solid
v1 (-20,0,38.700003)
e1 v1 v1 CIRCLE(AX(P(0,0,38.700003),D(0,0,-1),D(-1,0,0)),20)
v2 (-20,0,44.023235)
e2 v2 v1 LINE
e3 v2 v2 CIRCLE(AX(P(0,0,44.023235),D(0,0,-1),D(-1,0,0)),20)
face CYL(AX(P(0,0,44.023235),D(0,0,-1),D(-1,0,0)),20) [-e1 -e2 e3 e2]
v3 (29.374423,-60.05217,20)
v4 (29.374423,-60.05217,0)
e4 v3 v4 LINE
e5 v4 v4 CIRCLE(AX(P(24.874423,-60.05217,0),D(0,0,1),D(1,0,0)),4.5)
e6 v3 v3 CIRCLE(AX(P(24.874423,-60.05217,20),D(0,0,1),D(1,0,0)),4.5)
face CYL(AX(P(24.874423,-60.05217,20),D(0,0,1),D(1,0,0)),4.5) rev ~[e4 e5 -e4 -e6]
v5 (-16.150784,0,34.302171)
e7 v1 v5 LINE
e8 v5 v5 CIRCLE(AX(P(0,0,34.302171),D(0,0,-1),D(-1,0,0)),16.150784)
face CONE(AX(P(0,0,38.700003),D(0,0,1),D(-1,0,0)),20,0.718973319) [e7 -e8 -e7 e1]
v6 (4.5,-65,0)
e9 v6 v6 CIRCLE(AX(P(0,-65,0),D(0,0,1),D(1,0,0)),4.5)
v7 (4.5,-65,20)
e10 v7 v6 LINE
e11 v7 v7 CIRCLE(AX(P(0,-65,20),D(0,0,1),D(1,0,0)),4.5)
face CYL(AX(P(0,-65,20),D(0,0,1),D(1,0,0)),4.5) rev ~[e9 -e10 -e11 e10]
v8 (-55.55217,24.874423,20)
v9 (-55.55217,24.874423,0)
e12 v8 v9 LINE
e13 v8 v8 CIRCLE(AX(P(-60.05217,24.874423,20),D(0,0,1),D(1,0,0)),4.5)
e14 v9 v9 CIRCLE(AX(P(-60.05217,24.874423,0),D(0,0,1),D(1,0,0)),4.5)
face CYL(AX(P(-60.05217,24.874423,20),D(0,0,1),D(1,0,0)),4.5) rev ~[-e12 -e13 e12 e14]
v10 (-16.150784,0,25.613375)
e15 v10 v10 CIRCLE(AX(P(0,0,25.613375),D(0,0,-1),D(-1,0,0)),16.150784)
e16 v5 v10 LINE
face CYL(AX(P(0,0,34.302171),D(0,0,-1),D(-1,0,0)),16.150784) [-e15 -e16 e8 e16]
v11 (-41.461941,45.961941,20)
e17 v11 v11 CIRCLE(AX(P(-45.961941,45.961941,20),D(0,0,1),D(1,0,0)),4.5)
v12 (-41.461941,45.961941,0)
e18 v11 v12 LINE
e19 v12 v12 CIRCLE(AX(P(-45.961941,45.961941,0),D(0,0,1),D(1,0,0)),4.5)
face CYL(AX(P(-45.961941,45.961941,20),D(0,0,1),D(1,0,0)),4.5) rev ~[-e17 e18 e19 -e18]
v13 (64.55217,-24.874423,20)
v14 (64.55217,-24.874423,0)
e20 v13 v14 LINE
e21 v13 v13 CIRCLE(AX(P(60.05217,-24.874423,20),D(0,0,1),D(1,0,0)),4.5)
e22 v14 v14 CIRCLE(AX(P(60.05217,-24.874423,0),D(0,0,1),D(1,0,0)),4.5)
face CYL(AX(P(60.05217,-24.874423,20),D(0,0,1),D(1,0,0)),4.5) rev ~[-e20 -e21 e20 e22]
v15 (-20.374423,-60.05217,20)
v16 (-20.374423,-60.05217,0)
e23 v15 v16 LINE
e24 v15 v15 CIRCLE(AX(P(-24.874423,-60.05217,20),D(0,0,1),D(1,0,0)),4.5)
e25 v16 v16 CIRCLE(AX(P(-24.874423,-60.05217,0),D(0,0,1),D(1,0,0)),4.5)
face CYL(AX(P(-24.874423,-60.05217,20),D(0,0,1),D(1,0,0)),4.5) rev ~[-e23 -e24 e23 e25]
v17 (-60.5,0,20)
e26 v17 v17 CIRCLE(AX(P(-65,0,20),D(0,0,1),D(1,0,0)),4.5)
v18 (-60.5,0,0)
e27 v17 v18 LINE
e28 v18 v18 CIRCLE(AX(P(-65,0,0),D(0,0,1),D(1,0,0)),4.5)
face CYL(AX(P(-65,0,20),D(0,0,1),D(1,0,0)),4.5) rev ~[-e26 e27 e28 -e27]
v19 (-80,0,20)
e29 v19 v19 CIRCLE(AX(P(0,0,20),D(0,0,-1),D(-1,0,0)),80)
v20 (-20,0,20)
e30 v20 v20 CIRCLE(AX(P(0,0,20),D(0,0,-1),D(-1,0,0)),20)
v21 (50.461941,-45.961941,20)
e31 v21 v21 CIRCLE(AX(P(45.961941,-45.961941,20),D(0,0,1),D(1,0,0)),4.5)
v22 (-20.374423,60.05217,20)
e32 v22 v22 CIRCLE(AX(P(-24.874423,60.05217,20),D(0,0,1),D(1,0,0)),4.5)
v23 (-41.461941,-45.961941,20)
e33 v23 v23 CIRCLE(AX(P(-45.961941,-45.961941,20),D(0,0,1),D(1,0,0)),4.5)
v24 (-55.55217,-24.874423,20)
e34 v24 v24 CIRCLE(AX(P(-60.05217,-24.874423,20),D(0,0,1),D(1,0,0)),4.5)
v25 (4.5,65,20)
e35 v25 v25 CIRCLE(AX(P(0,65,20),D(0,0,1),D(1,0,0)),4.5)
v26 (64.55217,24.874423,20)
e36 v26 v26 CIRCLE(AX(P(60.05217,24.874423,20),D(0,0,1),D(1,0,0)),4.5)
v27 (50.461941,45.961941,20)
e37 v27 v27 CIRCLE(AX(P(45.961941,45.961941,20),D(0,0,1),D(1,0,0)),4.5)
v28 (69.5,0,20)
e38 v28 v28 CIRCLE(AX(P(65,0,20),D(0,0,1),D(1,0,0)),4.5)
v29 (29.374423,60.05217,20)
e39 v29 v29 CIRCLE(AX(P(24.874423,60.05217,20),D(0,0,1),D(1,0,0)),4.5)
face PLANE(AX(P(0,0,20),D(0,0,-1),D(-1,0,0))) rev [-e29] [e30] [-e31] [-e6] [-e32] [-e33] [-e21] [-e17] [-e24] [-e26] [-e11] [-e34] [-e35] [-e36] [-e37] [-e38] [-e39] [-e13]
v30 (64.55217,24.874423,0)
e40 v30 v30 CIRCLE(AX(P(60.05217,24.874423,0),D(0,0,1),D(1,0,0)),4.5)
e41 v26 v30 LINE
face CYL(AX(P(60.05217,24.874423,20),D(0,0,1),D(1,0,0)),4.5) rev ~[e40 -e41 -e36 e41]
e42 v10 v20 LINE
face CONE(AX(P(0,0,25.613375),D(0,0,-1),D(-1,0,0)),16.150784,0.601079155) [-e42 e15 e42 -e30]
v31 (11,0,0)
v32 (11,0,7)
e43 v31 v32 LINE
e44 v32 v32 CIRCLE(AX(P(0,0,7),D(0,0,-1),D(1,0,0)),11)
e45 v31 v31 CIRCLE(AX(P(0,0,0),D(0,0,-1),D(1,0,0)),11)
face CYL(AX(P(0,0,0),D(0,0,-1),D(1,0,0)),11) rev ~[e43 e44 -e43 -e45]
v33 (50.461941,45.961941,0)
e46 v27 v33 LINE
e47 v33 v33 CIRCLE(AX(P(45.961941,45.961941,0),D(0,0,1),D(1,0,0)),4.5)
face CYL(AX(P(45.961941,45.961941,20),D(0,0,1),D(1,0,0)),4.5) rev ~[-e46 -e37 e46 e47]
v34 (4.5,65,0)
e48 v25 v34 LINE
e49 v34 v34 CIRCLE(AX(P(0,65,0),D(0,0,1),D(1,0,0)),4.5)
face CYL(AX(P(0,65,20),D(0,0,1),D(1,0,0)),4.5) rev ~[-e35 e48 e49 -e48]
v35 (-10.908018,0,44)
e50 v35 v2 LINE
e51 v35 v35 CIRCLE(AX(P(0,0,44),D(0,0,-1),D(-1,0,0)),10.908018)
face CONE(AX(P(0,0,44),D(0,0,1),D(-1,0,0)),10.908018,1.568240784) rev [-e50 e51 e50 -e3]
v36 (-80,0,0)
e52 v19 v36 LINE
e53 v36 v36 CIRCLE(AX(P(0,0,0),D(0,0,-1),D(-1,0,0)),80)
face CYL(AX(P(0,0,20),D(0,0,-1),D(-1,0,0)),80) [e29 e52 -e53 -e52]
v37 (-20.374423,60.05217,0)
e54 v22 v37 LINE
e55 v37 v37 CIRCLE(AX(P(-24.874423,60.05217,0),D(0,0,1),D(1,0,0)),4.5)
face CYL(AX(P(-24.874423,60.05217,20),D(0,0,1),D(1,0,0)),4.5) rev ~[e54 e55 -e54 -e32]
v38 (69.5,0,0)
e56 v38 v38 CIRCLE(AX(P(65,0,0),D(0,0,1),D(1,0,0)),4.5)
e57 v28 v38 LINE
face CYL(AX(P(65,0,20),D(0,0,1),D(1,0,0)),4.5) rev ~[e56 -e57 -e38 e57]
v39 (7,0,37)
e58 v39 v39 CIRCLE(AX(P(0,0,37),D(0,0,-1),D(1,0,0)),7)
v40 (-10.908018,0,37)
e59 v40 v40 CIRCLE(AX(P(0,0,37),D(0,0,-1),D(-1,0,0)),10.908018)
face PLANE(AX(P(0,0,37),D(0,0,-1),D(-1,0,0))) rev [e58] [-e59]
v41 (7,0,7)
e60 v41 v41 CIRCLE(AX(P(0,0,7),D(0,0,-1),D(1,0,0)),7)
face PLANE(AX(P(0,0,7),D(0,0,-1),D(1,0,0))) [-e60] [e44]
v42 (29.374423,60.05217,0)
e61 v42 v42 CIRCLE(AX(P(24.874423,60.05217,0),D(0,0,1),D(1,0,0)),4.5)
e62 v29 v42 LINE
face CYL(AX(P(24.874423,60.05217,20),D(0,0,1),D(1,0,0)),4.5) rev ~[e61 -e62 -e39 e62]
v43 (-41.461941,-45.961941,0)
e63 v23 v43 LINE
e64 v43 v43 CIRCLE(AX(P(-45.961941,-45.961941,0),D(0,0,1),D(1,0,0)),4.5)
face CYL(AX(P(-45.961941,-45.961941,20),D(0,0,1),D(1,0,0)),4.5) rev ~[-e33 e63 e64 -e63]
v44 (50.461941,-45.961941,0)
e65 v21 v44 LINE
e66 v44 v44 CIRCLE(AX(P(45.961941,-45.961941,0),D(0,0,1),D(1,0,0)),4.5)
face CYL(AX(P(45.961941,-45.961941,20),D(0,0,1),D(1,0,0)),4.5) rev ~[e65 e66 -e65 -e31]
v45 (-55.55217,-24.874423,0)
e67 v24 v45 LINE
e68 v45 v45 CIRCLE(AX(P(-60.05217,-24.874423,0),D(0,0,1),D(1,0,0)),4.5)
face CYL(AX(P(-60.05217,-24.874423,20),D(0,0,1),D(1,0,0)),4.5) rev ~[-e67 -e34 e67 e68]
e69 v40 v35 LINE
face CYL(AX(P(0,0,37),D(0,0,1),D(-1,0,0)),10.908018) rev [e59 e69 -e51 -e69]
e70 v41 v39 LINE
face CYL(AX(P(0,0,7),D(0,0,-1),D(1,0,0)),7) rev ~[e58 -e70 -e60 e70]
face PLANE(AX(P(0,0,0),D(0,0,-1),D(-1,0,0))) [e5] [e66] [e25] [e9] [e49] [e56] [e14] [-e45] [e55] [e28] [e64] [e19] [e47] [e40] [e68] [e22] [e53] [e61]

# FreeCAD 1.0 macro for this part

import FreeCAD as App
import Part
import Sketcher
from FreeCAD import Vector

doc = App.newDocument("Part")
body = doc.addObject("PartDesign::Body", "Body")

sketch1 = body.newObject("Sketcher::SketchObject", "Sketch")
sketch1.AttachmentSupport = (doc.getObject("XZ_Plane"), [""])
sketch1.MapMode = "FlatFace"
sketch1.addGeometry([
    Part.LineSegment(Vector(-20, 20, 0), Vector(-80, 20, 0)),
    Part.LineSegment(Vector(-80, 20, 0), Vector(-80, 0, 0)),
    Part.LineSegment(Vector(-80, 0, 0), Vector(0, 0, 0)),
    Part.LineSegment(Vector(0, 0, 0), Vector(0, 37, 0)),
    Part.LineSegment(Vector(0, 37, 0), Vector(-11, 37, 0)),
    Part.LineSegment(Vector(-11, 37, 0), Vector(-11, 44, 0)),
    Part.LineSegment(Vector(-11, 44, 0), Vector(-20, 44, 0)),
    Part.LineSegment(Vector(-20, 44, 0), Vector(-20, 39, 0)),
    Part.LineSegment(Vector(-20, 39, 0), Vector(-16, 34, 0)),
    Part.LineSegment(Vector(-16, 34, 0), Vector(-16, 26, 0)),
    Part.LineSegment(Vector(-16, 26, 0), Vector(-20, 20, 0)),
], False)
sketch1.addConstraint([
    Sketcher.Constraint("Coincident", 0, 2, 1, 1),
    Sketcher.Constraint("Coincident", 1, 2, 2, 1),
    Sketcher.Constraint("Coincident", 2, 2, 3, 1),
    Sketcher.Constraint("Coincident", 3, 2, 4, 1),
    Sketcher.Constraint("Coincident", 4, 2, 5, 1),
    Sketcher.Constraint("Coincident", 5, 2, 6, 1),
    Sketcher.Constraint("Coincident", 6, 2, 7, 1),
    Sketcher.Constraint("Coincident", 7, 2, 8, 1),
    Sketcher.Constraint("Coincident", 8, 2, 9, 1),
    Sketcher.Constraint("Coincident", 9, 2, 10, 1),
    Sketcher.Constraint("Coincident", 10, 2, 0, 1),
    Sketcher.Constraint("Horizontal", 0),
    Sketcher.Constraint("Vertical", 1),
    Sketcher.Constraint("Horizontal", 2),
    Sketcher.Constraint("Vertical", 3),
    Sketcher.Constraint("Horizontal", 4),
    Sketcher.Constraint("Vertical", 5),
    Sketcher.Constraint("Vertical", 7),
    Sketcher.Constraint("Vertical", 9),
    Sketcher.Constraint("Coincident", 2, 2, -1, 1),
    Sketcher.Constraint("Vertical", 7, 2, 10, 2),
    Sketcher.Constraint("DistanceX", 0, 2, 0, 1, 60.0),
    Sketcher.Constraint("DistanceX", 2, 1, 2, 2, 80.0),
    Sketcher.Constraint("DistanceY", 1, 2, 1, 1, 20.0),
    Sketcher.Constraint("DistanceY", 3, 1, 3, 2, 37.0),
    Sketcher.Constraint("DistanceY", 5, 1, 5, 2, 7.0),
    Sketcher.Constraint("DistanceY", 7, 2, 7, 1, 5.323232),
    Sketcher.Constraint("Distance", 6, 9.092012),
    Sketcher.Constraint("DistanceY", 9, 2, 9, 1, 8.688796),
    Sketcher.Constraint("DistanceY", -1, 1, 8, 2, 34.302171),
    Sketcher.Constraint("DistanceY", 9, 2, 7, 2, 13.086628),
    Sketcher.Constraint("Distance", 8, 5.844432),
])
revolution = body.newObject("PartDesign::Revolution", "Revolution")
revolution.Profile = sketch1
revolution.ReferenceAxis = (sketch1, ["V_Axis"])
revolution.Angle = 360

sketch2 = body.newObject("Sketcher::SketchObject", "Sketch001")
sketch2.AttachmentSupport = (doc.getObject("XY_Plane"), [""])
sketch2.MapMode = "FlatFace"
sketch2.addGeometry(Part.Circle(Vector(0, 0, 0), Vector(0, 0, 1), 11), False)
sketch2.addConstraint([
    Sketcher.Constraint("Coincident", 0, 3, -1, 1),
    Sketcher.Constraint("Diameter", 0, 22.0),
])
pocket1 = body.newObject("PartDesign::Pocket", "Pocket")
pocket1.Profile = sketch2
pocket1.Length = 7
pocket1.Reversed = True

sketch3 = body.newObject("Sketcher::SketchObject", "Sketch002")
sketch3.AttachmentSupport = (doc.getObject("XY_Plane"), [""])
sketch3.MapMode = "FlatFace"
sketch3.AttachmentOffset = App.Placement(Vector(0, 0, 7), App.Rotation())
sketch3.addGeometry(Part.Circle(Vector(0, 0, 0), Vector(0, 0, 1), 7), False)
sketch3.addConstraint([
    Sketcher.Constraint("Coincident", 0, 3, -1, 1),
    Sketcher.Constraint("Diameter", 0, 14.0),
])
pocket2 = body.newObject("PartDesign::Pocket", "Pocket001")
pocket2.Profile = sketch3
pocket2.Length = 80
pocket2.Reversed = True

sketch4 = body.newObject("Sketcher::SketchObject", "Sketch003")
sketch4.AttachmentSupport = (doc.getObject("XY_Plane"), [""])
sketch4.MapMode = "FlatFace"
sketch4.AttachmentOffset = App.Placement(Vector(0, 0, 20), App.Rotation())
sketch4.addGeometry([
    Part.Circle(Vector(-46, 46, 0), Vector(0, 0, 1), 4.5),
    Part.Circle(Vector(-24.9, 60.1, 0), Vector(0, 0, 1), 4.5),
    Part.Circle(Vector(0, 65, 0), Vector(0, 0, 1), 4.5),
    Part.Circle(Vector(24.9, 60.1, 0), Vector(0, 0, 1), 4.5),
    Part.Circle(Vector(46, 46, 0), Vector(0, 0, 1), 4.5),
    Part.Circle(Vector(60.1, 24.9, 0), Vector(0, 0, 1), 4.5),
    Part.Circle(Vector(65, 0, 0), Vector(0, 0, 1), 4.5),
    Part.Circle(Vector(60.1, -24.9, 0), Vector(0, 0, 1), 4.5),
    Part.Circle(Vector(46, -46, 0), Vector(0, 0, 1), 4.5),
    Part.Circle(Vector(24.9, -60.1, 0), Vector(0, 0, 1), 4.5),
    Part.Circle(Vector(0, -65, 0), Vector(0, 0, 1), 4.5),
    Part.Circle(Vector(-24.9, -60.1, 0), Vector(0, 0, 1), 4.5),
    Part.Circle(Vector(-46, -46, 0), Vector(0, 0, 1), 4.5),
    Part.Circle(Vector(-60.1, -24.9, 0), Vector(0, 0, 1), 4.5),
    Part.Circle(Vector(-65, 0, 0), Vector(0, 0, 1), 4.5),
    Part.Circle(Vector(-60.1, 24.9, 0), Vector(0, 0, 1), 4.5),
], False)
sketch4.addConstraint([
    Sketcher.Constraint("Equal", 0, 1),
    Sketcher.Constraint("Equal", 1, 2),
    Sketcher.Constraint("Equal", 2, 3),
    Sketcher.Constraint("Equal", 3, 4),
    Sketcher.Constraint("Equal", 4, 5),
    Sketcher.Constraint("Equal", 5, 6),
    Sketcher.Constraint("Equal", 6, 7),
    Sketcher.Constraint("Equal", 7, 8),
    Sketcher.Constraint("Equal", 8, 9),
    Sketcher.Constraint("Equal", 9, 10),
    Sketcher.Constraint("Equal", 10, 11),
    Sketcher.Constraint("Equal", 11, 12),
    Sketcher.Constraint("Equal", 12, 13),
    Sketcher.Constraint("Equal", 13, 14),
    Sketcher.Constraint("Equal", 14, 15),
    Sketcher.Constraint("Symmetric", 0, 3, 8, 3, -1, 1),
    Sketcher.Constraint("Symmetric", 1, 3, 9, 3, -1, 1),
    Sketcher.Constraint("Symmetric", 2, 3, 10, 3, -1, 1),
    Sketcher.Constraint("Symmetric", 3, 3, 11, 3, -1, 1),
    Sketcher.Constraint("Symmetric", 4, 3, 12, 3, -1, 1),
    Sketcher.Constraint("Symmetric", 5, 3, 13, 3, -1, 1),
    Sketcher.Constraint("Symmetric", 6, 3, 14, 3, -1, 1),
    Sketcher.Constraint("Symmetric", 7, 3, 15, 3, -1, 1),
    Sketcher.Constraint("Symmetric", 1, 3, 3, 3, -2),
    Sketcher.Constraint("Symmetric", 0, 3, 4, 3, -2),
    Sketcher.Constraint("Symmetric", 7, 3, 13, 3, -2),
    Sketcher.Constraint("PointOnObject", 2, 3, -2),
    Sketcher.Constraint("PointOnObject", 6, 3, -1),
    Sketcher.Constraint("Diameter", 0, 9.0),
    Sketcher.Constraint("DistanceY", -1, 1, 2, 3, 65.0),
    Sketcher.Constraint("DistanceX", -1, 1, 6, 3, 65.0),
    Sketcher.Constraint("DistanceX", 0, 3, -1, 1, 45.961941),
    Sketcher.Constraint("DistanceY", -1, 1, 0, 3, 45.961941),
    Sketcher.Constraint("DistanceY", -1, 1, 1, 3, 60.05217),
    Sketcher.Constraint("DistanceX", -1, 1, 5, 3, 60.05217),
    Sketcher.Constraint("DistanceX", 0, 3, 1, 3, 21.087518),
    Sketcher.Constraint("DistanceY", 5, 3, 4, 3, 21.087518),
])
pocket3 = body.newObject("PartDesign::Pocket", "Pocket002")
pocket3.Profile = sketch4
pocket3.Length = 41.7

doc.recompute()
